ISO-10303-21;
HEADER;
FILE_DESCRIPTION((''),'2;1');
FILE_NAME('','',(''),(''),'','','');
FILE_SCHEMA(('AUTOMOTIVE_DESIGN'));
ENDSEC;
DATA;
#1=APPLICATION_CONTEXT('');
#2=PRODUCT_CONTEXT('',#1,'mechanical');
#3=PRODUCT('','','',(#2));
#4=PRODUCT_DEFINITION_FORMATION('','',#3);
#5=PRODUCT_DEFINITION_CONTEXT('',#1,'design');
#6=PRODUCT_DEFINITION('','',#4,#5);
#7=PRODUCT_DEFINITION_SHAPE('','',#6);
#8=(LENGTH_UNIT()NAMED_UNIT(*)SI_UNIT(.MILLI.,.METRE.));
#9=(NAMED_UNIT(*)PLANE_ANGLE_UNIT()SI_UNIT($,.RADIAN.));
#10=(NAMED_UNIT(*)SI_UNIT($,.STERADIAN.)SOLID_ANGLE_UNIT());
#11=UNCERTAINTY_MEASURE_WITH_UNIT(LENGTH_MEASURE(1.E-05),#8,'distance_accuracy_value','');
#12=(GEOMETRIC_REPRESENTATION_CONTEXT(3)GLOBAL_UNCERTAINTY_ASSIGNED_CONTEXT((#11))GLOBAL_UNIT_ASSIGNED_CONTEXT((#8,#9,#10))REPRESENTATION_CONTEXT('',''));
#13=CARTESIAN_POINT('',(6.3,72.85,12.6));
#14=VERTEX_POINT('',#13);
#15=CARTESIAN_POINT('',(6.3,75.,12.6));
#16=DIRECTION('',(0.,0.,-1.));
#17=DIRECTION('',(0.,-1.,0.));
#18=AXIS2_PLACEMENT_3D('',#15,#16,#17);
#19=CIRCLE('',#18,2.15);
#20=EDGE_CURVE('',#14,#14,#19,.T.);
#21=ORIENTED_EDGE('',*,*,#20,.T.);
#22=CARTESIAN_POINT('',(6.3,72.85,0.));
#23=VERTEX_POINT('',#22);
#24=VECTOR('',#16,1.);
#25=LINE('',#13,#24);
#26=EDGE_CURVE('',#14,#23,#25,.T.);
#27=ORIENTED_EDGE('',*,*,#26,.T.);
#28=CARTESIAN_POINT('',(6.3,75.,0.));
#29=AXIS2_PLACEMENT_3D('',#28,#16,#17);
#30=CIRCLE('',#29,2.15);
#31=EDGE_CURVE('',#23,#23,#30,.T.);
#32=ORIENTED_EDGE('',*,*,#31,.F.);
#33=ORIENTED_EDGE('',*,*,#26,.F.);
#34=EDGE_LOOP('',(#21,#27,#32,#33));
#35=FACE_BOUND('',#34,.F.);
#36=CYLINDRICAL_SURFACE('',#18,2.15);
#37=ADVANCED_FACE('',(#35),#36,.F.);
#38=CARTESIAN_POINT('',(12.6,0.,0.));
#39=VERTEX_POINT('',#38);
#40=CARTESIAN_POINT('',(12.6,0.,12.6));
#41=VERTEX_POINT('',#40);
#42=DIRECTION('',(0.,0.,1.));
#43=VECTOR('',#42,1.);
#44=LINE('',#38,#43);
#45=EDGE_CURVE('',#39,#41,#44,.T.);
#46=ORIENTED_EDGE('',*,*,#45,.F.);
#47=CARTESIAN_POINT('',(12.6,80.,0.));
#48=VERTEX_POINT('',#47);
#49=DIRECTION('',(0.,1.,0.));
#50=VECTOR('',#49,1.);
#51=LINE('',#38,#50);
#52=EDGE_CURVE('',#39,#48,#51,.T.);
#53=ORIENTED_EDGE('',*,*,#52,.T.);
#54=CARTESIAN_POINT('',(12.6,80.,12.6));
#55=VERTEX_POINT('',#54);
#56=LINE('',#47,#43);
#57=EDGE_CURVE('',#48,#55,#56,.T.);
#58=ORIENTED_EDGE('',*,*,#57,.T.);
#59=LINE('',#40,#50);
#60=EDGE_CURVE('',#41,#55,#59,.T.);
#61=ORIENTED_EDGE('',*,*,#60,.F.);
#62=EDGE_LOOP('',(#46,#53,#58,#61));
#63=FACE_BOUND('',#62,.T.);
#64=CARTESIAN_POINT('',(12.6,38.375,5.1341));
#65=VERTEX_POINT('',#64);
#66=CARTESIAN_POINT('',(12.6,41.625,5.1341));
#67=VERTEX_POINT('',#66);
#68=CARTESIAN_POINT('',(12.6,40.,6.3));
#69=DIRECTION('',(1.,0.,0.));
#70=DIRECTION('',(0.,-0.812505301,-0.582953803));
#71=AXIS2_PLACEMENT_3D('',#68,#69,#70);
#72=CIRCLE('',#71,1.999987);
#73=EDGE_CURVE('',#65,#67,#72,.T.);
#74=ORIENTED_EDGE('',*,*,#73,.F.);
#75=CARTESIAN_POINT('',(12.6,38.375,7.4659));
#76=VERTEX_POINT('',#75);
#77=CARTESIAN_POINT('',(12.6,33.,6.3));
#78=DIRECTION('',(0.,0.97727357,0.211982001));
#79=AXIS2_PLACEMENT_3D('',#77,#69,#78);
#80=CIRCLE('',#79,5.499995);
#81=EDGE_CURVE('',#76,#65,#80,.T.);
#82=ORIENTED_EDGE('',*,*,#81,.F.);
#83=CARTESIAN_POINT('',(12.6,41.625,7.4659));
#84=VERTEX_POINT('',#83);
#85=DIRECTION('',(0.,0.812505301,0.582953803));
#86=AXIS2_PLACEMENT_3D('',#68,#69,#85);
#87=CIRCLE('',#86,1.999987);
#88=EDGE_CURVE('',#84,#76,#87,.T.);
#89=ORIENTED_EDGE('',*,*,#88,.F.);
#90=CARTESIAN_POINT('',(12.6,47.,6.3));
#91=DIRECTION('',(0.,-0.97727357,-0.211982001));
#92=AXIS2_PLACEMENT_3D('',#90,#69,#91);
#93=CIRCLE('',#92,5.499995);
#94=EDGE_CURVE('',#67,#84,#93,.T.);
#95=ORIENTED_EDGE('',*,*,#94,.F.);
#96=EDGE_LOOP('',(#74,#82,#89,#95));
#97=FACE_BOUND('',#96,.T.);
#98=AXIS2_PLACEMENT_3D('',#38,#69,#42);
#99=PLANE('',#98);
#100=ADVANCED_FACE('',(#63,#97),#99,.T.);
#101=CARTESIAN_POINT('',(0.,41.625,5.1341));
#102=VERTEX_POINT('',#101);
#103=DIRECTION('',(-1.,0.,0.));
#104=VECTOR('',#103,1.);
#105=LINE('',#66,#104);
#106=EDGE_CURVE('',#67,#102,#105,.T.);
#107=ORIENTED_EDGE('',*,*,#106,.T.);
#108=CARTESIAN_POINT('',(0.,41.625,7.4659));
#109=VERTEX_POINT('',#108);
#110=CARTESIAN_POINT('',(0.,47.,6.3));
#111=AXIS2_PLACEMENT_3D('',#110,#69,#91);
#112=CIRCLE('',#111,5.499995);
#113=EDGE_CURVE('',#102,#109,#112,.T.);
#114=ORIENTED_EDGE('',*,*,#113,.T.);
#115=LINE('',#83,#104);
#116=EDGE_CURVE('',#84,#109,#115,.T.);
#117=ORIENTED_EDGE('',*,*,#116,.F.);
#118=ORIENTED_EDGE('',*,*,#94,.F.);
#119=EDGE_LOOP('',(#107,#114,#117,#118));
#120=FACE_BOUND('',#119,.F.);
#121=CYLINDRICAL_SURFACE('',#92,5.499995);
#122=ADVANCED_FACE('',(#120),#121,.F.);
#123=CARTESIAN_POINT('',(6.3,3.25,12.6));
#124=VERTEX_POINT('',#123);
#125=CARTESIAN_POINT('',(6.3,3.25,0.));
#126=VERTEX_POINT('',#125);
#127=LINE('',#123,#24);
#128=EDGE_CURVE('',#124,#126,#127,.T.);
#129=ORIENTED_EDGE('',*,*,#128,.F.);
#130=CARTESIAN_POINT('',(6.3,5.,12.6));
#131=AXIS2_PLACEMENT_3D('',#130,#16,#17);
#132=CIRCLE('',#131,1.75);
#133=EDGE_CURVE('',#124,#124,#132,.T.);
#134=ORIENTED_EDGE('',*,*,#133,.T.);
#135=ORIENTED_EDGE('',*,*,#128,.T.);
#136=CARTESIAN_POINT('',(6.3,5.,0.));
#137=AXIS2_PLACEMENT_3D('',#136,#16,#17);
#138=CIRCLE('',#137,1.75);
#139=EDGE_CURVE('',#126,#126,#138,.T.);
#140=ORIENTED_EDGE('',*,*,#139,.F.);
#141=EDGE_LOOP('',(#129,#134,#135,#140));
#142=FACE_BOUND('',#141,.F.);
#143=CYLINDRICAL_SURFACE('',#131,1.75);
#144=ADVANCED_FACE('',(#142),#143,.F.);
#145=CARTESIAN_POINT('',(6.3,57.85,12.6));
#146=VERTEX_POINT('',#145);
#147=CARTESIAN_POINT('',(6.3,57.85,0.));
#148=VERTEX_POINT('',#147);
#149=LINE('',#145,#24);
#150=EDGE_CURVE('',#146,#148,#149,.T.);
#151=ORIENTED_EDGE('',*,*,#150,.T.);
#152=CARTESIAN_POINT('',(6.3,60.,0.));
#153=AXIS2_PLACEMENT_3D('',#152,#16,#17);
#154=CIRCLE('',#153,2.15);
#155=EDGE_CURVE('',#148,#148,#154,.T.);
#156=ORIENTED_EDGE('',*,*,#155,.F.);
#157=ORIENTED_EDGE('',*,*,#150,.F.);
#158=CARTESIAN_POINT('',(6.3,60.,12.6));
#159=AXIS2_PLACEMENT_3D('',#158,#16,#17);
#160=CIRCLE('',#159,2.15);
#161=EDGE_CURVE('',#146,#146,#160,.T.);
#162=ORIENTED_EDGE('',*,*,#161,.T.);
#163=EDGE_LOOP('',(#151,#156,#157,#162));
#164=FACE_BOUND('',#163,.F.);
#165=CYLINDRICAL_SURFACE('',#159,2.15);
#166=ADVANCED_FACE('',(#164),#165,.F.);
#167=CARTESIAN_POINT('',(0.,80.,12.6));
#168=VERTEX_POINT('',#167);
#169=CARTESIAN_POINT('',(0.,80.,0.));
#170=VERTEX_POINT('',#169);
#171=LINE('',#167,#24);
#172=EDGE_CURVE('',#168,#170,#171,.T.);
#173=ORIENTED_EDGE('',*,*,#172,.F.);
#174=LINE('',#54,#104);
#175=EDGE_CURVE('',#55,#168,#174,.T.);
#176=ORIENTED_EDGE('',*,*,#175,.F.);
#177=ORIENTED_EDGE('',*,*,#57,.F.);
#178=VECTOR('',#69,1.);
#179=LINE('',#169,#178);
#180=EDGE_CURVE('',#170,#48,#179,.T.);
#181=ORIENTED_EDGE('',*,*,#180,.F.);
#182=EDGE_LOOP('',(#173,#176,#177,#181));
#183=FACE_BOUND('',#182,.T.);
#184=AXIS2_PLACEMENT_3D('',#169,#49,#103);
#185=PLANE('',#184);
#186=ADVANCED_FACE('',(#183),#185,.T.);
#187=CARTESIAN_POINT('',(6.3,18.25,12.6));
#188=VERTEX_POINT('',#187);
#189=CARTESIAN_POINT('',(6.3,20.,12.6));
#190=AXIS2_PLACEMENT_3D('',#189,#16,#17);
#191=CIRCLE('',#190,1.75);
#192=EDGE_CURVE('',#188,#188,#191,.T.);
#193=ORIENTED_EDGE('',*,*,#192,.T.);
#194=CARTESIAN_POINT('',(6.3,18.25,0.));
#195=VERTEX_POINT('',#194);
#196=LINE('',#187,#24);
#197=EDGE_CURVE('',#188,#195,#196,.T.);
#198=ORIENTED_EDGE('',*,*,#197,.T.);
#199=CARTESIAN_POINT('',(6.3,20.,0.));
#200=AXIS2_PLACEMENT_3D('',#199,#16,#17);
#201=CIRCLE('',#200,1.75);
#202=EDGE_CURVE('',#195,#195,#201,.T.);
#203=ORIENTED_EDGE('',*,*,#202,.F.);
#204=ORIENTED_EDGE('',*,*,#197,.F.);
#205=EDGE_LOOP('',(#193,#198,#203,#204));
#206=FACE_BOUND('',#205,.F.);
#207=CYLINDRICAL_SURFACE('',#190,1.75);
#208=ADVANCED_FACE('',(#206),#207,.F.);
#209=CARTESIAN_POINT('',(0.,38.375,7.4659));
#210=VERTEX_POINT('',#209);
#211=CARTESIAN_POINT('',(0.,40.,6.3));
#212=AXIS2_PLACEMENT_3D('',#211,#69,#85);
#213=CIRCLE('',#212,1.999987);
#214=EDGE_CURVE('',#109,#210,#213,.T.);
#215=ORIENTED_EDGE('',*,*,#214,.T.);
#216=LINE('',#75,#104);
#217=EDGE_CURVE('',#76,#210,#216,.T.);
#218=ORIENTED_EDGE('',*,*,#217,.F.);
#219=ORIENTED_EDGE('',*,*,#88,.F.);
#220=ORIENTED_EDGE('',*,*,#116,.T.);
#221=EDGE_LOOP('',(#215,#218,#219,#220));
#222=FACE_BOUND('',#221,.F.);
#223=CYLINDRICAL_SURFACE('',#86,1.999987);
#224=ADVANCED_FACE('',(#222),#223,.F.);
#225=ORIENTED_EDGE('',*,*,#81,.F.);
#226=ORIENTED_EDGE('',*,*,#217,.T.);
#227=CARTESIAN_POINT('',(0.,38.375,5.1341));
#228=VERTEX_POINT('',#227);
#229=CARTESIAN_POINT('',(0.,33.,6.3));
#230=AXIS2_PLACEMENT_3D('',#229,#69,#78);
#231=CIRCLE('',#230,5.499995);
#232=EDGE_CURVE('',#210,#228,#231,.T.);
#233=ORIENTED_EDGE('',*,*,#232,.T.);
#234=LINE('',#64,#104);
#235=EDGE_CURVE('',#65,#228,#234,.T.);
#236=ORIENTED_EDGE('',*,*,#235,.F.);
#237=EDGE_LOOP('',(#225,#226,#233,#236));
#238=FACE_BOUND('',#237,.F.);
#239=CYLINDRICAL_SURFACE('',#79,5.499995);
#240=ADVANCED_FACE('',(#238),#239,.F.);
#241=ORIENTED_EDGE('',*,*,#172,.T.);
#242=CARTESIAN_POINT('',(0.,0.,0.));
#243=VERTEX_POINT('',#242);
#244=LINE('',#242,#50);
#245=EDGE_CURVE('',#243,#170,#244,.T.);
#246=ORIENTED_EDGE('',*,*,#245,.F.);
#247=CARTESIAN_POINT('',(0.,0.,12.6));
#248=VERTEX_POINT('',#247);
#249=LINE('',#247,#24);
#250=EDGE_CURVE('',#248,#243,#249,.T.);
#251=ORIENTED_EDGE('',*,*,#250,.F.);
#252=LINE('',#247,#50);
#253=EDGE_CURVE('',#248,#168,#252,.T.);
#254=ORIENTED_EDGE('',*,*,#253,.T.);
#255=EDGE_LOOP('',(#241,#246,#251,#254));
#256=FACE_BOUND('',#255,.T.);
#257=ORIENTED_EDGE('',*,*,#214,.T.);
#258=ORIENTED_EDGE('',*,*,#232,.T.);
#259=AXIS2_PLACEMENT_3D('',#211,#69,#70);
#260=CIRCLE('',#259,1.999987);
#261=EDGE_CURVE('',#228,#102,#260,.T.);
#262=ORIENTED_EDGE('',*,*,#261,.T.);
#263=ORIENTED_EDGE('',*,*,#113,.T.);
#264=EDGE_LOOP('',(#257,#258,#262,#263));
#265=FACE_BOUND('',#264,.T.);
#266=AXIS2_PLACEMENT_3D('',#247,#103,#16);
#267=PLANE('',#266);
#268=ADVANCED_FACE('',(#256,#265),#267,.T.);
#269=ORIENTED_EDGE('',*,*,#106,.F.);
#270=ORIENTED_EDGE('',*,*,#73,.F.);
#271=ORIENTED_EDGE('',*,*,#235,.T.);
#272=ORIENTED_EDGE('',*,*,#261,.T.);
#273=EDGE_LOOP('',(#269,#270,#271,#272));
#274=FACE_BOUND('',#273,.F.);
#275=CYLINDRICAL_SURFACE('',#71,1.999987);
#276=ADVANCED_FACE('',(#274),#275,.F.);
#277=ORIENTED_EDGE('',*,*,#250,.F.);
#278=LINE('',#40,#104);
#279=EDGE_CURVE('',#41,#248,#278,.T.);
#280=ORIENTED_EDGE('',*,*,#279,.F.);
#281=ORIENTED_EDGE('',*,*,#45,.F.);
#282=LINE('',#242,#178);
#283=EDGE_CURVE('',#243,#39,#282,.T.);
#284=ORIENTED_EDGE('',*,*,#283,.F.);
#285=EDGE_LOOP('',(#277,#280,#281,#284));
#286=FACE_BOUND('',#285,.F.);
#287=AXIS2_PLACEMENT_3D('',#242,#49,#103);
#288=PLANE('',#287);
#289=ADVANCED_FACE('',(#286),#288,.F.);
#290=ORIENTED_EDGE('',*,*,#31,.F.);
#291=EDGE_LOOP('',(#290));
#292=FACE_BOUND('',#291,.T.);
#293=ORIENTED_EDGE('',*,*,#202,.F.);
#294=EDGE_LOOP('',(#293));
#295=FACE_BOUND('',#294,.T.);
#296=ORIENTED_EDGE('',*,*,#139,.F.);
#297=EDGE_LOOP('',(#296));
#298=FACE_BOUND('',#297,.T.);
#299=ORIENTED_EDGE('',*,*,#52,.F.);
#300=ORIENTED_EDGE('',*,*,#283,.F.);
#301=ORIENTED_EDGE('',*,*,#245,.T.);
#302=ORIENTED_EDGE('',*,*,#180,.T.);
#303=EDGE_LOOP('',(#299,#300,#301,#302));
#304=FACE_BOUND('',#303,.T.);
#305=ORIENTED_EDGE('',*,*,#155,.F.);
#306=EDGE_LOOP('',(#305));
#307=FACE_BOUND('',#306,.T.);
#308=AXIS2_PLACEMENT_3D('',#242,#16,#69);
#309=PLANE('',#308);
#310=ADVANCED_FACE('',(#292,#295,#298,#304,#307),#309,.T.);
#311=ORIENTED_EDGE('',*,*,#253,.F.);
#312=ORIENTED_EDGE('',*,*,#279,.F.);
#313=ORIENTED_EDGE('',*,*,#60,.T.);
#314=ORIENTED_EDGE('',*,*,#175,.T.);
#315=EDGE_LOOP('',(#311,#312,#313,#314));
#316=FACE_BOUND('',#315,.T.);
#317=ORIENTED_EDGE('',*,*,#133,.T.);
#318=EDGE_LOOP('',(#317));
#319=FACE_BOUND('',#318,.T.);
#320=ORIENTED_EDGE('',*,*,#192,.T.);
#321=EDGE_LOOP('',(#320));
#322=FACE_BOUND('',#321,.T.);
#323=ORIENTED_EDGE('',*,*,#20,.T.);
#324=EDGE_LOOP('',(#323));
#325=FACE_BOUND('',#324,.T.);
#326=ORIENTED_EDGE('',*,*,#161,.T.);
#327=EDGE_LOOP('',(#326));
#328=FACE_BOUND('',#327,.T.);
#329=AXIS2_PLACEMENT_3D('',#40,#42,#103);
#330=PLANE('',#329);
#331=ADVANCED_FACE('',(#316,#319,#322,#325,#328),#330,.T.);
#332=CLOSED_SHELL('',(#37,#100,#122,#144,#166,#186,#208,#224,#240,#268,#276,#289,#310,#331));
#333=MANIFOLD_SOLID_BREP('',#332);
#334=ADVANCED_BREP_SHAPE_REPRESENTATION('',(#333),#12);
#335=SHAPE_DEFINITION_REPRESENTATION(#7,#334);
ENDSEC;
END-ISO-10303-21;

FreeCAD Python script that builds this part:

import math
import FreeCAD as App
import Part
import Sketcher

V = App.Vector


def add_polygon(sketch, points):
    """Adds a closed chain of lines whose ends are joined by coincident constraints."""
    first, n = sketch.GeometryCount, len(points)
    for a, b in zip(points, points[1:] + points[:1]):
        sketch.addGeometry(Part.LineSegment(App.Vector(*a, 0), App.Vector(*b, 0)), False)
    for i in range(n):
        sketch.addConstraint(Sketcher.Constraint("Coincident", first + i, 2, first + (i + 1) % n, 1))

doc = App.newDocument("Part")
body = doc.addObject("PartDesign::Body", "Body")

# Sketch on XZ plane
sketch1 = doc.addObject("Sketcher::SketchObject", "Sketch")
body.addObject(sketch1)
sketch1.AttachmentSupport = (doc.XZ_Plane, [""])
sketch1.MapMode = "FlatFace"
add_polygon(sketch1, [(12.6, 0), (0, 0), (0, 12.6), (12.6, 12.6)])  # lines 0-3
sketch1.addConstraint(Sketcher.Constraint("Horizontal", 0))
sketch1.addConstraint(Sketcher.Constraint("Vertical", 1))
sketch1.addConstraint(Sketcher.Constraint("Horizontal", 2))
sketch1.addConstraint(Sketcher.Constraint("Vertical", 3))
sketch1.addConstraint(Sketcher.Constraint("Coincident", 0, 2, -1, 1))
sketch1.addConstraint(Sketcher.Constraint("Equal", 2, 1))
sketch1.addConstraint(Sketcher.Constraint("DistanceX", 0, 2, 0, 1, 12.6))
pad1 = doc.addObject("PartDesign::Pad", "Pad")
body.addObject(pad1)
pad1.Profile = sketch1
pad1.Length = 80
pad1.Reversed = True

# Sketch on YZ plane
sketch2 = doc.addObject("Sketcher::SketchObject", "Sketch001")
body.addObject(sketch2)
sketch2.AttachmentSupport = (doc.YZ_Plane, [""])
sketch2.MapMode = "FlatFace"
sketch2.AttachmentOffset = App.Placement(V(0, 0, 12.6), App.Rotation())
sketch2.addGeometry(Part.ArcOfCircle(Part.Circle(V(40, 6.3, 0), V(0, 0, 1), 1.999987), math.radians(35.658567), math.radians(144.341433)), False)
sketch2.addGeometry(Part.ArcOfCircle(Part.Circle(V(33, 6.3, 0), V(0, 0, 1), 5.499995), math.radians(12.238528), math.radians(347.761472)), False)
sketch2.addGeometry(Part.ArcOfCircle(Part.Circle(V(40, 6.3, 0), V(0, 0, 1), 1.999987), math.radians(-144.341433), math.radians(-35.658567)), False)
sketch2.addGeometry(Part.ArcOfCircle(Part.Circle(V(47, 6.3, 0), V(0, 0, 1), 5.499995), math.radians(-167.761472), math.radians(167.761472)), False)
sketch2.addConstraint(Sketcher.Constraint("Coincident", 0, 2, 1, 1))
sketch2.addConstraint(Sketcher.Constraint("Coincident", 1, 2, 2, 1))
sketch2.addConstraint(Sketcher.Constraint("Coincident", 2, 2, 3, 1))
sketch2.addConstraint(Sketcher.Constraint("Coincident", 3, 2, 0, 1))
sketch2.addConstraint(Sketcher.Constraint("Coincident", 2, 3, 0, 3))
sketch2.addConstraint(Sketcher.Constraint("Equal", 0, 2))
sketch2.addConstraint(Sketcher.Constraint("Equal", 1, 3))
sketch2.addConstraint(Sketcher.Constraint("Horizontal", 0, 3, 1, 3))
sketch2.addConstraint(Sketcher.Constraint("Horizontal", 2, 3, 3, 3))
sketch2.addConstraint(Sketcher.Constraint("Horizontal", 1, 2, 2, 2))
sketch2.addConstraint(Sketcher.Constraint("Radius", 1, 5.5))
sketch2.addConstraint(Sketcher.Constraint("DistanceX", -1, 1, 1, 3, 33.0))
sketch2.addConstraint(Sketcher.Constraint("Radius", 0, 2.0))
sketch2.addConstraint(Sketcher.Constraint("DistanceX", -1, 1, 0, 3, 40.0))
sketch2.addConstraint(Sketcher.Constraint("DistanceY", -1, 1, 0, 3, 6.3))
pocket1 = doc.addObject("PartDesign::Pocket", "Pocket")
body.addObject(pocket1)
pocket1.Profile = sketch2
pocket1.Length = 80

# Sketch on XY plane
sketch3 = doc.addObject("Sketcher::SketchObject", "Sketch002")
body.addObject(sketch3)
sketch3.AttachmentSupport = (doc.XY_Plane, [""])
sketch3.MapMode = "FlatFace"
sketch3.AttachmentOffset = App.Placement(V(0, 0, 12.6), App.Rotation())
sketch3.addGeometry(Part.Circle(V(6.3, 5, 0), V(0, 0, 1), 1.75), False)
sketch3.addGeometry(Part.Circle(V(6.3, 20, 0), V(0, 0, 1), 1.75), False)
sketch3.addConstraint(Sketcher.Constraint("Equal", 0, 1))
sketch3.addConstraint(Sketcher.Constraint("Vertical", 0, 3, 1, 3))
sketch3.addConstraint(Sketcher.Constraint("Diameter", 0, 3.5))
sketch3.addConstraint(Sketcher.Constraint("DistanceY", -1, 1, 0, 3, 5.0))
sketch3.addConstraint(Sketcher.Constraint("DistanceY", -1, 1, 1, 3, 20.0))
sketch3.addConstraint(Sketcher.Constraint("DistanceX", -1, 1, 0, 3, 6.3))
doc.recompute()
hole = doc.addObject("PartDesign::Hole", "Hole")
body.addObject(hole)
hole.Profile = sketch3
hole.ThreadType = "None"
hole.Diameter = 3.5
hole.DepthType = "ThroughAll"

# Sketch on XY plane
sketch4 = doc.addObject("Sketcher::SketchObject", "Sketch003")
body.addObject(sketch4)
sketch4.AttachmentSupport = (doc.XY_Plane, [""])
sketch4.MapMode = "FlatFace"
sketch4.AttachmentOffset = App.Placement(V(0, 0, 12.6), App.Rotation())
sketch4.addGeometry(Part.Circle(V(6.3, 60, 0), V(0, 0, 1), 2.15), False)
sketch4.addGeometry(Part.Circle(V(6.3, 75, 0), V(0, 0, 1), 2.15), False)
sketch4.addConstraint(Sketcher.Constraint("Equal", 0, 1))
sketch4.addConstraint(Sketcher.Constraint("Vertical", 0, 3, 1, 3))
sketch4.addConstraint(Sketcher.Constraint("Diameter", 0, 4.3))
sketch4.addConstraint(Sketcher.Constraint("DistanceY", -1, 1, 0, 3, 60.0))
sketch4.addConstraint(Sketcher.Constraint("DistanceY", -1, 1, 1, 3, 75.0))
sketch4.addConstraint(Sketcher.Constraint("DistanceX", -1, 1, 0, 3, 6.3))
doc.recompute()
hole2 = doc.addObject("PartDesign::Hole", "Hole001")
body.addObject(hole2)
hole2.Profile = sketch4
hole2.ThreadType = "None"
hole2.Diameter = 4.3
hole2.DepthType = "ThroughAll"

doc.recompute()
